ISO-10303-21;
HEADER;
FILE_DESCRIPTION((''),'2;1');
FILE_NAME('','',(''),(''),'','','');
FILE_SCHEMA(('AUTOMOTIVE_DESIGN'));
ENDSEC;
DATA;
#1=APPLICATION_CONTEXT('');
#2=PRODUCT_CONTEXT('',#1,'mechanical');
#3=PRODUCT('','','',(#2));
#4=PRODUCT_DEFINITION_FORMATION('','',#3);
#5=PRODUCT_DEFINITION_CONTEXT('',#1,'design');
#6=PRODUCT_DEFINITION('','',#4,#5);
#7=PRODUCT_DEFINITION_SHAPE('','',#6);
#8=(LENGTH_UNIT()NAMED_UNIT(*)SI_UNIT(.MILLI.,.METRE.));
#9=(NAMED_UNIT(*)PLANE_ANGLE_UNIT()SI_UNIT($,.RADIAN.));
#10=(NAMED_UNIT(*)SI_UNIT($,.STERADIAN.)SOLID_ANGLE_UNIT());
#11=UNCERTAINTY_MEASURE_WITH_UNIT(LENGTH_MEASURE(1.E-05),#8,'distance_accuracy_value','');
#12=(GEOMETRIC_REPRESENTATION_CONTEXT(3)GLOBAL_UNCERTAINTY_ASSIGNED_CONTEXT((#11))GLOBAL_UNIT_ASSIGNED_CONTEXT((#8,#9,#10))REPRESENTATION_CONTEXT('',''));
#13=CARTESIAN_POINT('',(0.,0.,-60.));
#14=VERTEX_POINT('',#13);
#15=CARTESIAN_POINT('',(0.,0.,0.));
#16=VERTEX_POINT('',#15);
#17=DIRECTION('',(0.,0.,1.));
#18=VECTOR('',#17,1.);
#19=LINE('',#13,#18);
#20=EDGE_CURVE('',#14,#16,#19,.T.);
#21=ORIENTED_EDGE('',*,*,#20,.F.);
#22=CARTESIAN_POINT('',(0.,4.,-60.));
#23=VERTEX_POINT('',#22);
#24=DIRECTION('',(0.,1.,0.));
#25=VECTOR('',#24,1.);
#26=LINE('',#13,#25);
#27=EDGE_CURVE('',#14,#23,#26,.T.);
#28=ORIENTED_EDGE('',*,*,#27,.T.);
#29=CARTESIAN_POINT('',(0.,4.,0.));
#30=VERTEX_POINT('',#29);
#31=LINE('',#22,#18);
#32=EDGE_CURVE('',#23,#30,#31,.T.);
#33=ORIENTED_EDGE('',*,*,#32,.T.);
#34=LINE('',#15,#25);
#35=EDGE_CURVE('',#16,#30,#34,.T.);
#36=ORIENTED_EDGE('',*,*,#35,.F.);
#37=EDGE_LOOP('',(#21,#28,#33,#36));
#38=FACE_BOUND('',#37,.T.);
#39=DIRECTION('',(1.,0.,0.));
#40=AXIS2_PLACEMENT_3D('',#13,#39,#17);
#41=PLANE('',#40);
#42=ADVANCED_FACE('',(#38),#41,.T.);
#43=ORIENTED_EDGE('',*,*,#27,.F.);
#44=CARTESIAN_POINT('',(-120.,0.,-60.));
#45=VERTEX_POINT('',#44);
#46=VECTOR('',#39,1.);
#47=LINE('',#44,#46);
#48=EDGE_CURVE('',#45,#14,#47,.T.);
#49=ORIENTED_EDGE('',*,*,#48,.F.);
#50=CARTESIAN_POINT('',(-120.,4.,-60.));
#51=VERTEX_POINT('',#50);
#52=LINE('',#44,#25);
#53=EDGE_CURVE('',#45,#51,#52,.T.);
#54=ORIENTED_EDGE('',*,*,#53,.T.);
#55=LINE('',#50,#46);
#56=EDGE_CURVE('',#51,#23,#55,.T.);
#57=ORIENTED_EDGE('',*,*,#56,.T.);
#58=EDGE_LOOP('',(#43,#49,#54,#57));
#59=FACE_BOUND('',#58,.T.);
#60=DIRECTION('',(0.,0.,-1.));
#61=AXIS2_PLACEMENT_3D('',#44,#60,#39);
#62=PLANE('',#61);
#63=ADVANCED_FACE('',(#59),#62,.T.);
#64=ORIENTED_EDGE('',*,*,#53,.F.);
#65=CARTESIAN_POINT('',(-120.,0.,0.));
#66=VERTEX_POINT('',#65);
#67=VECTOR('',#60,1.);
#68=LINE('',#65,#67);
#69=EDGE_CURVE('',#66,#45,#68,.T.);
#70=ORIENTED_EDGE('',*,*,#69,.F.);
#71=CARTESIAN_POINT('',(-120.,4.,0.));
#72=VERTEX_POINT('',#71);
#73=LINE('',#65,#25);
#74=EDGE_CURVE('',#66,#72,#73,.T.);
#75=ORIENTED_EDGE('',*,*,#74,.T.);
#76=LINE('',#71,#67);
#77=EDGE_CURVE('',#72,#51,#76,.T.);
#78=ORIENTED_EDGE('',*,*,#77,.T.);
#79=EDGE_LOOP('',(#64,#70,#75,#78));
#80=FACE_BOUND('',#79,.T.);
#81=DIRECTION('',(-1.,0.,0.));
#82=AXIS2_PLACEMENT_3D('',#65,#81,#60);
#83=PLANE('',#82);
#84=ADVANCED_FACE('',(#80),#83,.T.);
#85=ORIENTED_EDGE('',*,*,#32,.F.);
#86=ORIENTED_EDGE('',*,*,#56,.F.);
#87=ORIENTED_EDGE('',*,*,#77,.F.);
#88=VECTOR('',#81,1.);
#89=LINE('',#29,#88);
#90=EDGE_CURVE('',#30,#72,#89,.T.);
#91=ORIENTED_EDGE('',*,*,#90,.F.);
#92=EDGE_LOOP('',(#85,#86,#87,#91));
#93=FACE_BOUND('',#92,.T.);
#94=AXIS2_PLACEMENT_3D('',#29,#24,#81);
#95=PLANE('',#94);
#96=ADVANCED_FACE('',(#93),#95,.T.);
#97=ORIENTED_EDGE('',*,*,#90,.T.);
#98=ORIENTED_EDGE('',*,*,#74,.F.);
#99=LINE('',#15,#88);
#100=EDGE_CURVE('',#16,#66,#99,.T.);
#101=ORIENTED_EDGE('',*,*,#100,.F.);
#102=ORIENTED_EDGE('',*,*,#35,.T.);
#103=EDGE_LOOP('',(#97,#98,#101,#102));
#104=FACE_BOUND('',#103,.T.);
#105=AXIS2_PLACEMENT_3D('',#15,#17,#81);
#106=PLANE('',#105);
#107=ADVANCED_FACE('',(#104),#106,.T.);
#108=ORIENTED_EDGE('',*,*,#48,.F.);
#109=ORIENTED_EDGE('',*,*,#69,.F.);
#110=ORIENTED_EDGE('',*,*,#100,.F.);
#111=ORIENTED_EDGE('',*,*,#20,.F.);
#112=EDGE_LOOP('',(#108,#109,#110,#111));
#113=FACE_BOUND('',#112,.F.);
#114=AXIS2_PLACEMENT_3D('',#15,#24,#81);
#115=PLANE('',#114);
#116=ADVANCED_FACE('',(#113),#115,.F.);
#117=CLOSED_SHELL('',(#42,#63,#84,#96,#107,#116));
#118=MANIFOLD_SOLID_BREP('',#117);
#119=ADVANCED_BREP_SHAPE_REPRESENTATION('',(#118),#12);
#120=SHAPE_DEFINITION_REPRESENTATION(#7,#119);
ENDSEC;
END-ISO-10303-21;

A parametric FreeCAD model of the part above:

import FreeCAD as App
import Part
import Sketcher
from FreeCAD import Vector


def add_polygon(sketch, points):
    """Adds a closed chain of lines whose ends are joined by coincident constraints."""
    first, n = sketch.GeometryCount, len(points)
    for a, b in zip(points, points[1:] + points[:1]):
        sketch.addGeometry(Part.LineSegment(App.Vector(*a, 0), App.Vector(*b, 0)), False)
    for i in range(n):
        sketch.addConstraint(Sketcher.Constraint("Coincident", first + i, 2, first + (i + 1) % n, 1))

doc = App.newDocument("Part")
body = doc.addObject("PartDesign::Body", "Body")

sketch1 = body.newObject("Sketcher::SketchObject", "Sketch")
sketch1.AttachmentSupport = (doc.getObject("XZ_Plane"), [""])
sketch1.MapMode = "FlatFace"
add_polygon(sketch1, [(-120, 0), (0, 0), (0, -60), (-120, -60)])
sketch1.addConstraint([
    Sketcher.Constraint("Horizontal", 0),
    Sketcher.Constraint("Vertical", 1),
    Sketcher.Constraint("Horizontal", 2),
    Sketcher.Constraint("Vertical", 3),
    Sketcher.Constraint("Coincident", 0, 2, -1, 1),
    Sketcher.Constraint("DistanceX", 0, 1, 0, 2, 120.0),
    Sketcher.Constraint("DistanceY", 1, 2, 1, 1, 60.0),
])
pad1 = body.newObject("PartDesign::Pad", "Pad")
pad1.Profile = sketch1
pad1.Length = 4
pad1.Reversed = True

doc.recompute()
